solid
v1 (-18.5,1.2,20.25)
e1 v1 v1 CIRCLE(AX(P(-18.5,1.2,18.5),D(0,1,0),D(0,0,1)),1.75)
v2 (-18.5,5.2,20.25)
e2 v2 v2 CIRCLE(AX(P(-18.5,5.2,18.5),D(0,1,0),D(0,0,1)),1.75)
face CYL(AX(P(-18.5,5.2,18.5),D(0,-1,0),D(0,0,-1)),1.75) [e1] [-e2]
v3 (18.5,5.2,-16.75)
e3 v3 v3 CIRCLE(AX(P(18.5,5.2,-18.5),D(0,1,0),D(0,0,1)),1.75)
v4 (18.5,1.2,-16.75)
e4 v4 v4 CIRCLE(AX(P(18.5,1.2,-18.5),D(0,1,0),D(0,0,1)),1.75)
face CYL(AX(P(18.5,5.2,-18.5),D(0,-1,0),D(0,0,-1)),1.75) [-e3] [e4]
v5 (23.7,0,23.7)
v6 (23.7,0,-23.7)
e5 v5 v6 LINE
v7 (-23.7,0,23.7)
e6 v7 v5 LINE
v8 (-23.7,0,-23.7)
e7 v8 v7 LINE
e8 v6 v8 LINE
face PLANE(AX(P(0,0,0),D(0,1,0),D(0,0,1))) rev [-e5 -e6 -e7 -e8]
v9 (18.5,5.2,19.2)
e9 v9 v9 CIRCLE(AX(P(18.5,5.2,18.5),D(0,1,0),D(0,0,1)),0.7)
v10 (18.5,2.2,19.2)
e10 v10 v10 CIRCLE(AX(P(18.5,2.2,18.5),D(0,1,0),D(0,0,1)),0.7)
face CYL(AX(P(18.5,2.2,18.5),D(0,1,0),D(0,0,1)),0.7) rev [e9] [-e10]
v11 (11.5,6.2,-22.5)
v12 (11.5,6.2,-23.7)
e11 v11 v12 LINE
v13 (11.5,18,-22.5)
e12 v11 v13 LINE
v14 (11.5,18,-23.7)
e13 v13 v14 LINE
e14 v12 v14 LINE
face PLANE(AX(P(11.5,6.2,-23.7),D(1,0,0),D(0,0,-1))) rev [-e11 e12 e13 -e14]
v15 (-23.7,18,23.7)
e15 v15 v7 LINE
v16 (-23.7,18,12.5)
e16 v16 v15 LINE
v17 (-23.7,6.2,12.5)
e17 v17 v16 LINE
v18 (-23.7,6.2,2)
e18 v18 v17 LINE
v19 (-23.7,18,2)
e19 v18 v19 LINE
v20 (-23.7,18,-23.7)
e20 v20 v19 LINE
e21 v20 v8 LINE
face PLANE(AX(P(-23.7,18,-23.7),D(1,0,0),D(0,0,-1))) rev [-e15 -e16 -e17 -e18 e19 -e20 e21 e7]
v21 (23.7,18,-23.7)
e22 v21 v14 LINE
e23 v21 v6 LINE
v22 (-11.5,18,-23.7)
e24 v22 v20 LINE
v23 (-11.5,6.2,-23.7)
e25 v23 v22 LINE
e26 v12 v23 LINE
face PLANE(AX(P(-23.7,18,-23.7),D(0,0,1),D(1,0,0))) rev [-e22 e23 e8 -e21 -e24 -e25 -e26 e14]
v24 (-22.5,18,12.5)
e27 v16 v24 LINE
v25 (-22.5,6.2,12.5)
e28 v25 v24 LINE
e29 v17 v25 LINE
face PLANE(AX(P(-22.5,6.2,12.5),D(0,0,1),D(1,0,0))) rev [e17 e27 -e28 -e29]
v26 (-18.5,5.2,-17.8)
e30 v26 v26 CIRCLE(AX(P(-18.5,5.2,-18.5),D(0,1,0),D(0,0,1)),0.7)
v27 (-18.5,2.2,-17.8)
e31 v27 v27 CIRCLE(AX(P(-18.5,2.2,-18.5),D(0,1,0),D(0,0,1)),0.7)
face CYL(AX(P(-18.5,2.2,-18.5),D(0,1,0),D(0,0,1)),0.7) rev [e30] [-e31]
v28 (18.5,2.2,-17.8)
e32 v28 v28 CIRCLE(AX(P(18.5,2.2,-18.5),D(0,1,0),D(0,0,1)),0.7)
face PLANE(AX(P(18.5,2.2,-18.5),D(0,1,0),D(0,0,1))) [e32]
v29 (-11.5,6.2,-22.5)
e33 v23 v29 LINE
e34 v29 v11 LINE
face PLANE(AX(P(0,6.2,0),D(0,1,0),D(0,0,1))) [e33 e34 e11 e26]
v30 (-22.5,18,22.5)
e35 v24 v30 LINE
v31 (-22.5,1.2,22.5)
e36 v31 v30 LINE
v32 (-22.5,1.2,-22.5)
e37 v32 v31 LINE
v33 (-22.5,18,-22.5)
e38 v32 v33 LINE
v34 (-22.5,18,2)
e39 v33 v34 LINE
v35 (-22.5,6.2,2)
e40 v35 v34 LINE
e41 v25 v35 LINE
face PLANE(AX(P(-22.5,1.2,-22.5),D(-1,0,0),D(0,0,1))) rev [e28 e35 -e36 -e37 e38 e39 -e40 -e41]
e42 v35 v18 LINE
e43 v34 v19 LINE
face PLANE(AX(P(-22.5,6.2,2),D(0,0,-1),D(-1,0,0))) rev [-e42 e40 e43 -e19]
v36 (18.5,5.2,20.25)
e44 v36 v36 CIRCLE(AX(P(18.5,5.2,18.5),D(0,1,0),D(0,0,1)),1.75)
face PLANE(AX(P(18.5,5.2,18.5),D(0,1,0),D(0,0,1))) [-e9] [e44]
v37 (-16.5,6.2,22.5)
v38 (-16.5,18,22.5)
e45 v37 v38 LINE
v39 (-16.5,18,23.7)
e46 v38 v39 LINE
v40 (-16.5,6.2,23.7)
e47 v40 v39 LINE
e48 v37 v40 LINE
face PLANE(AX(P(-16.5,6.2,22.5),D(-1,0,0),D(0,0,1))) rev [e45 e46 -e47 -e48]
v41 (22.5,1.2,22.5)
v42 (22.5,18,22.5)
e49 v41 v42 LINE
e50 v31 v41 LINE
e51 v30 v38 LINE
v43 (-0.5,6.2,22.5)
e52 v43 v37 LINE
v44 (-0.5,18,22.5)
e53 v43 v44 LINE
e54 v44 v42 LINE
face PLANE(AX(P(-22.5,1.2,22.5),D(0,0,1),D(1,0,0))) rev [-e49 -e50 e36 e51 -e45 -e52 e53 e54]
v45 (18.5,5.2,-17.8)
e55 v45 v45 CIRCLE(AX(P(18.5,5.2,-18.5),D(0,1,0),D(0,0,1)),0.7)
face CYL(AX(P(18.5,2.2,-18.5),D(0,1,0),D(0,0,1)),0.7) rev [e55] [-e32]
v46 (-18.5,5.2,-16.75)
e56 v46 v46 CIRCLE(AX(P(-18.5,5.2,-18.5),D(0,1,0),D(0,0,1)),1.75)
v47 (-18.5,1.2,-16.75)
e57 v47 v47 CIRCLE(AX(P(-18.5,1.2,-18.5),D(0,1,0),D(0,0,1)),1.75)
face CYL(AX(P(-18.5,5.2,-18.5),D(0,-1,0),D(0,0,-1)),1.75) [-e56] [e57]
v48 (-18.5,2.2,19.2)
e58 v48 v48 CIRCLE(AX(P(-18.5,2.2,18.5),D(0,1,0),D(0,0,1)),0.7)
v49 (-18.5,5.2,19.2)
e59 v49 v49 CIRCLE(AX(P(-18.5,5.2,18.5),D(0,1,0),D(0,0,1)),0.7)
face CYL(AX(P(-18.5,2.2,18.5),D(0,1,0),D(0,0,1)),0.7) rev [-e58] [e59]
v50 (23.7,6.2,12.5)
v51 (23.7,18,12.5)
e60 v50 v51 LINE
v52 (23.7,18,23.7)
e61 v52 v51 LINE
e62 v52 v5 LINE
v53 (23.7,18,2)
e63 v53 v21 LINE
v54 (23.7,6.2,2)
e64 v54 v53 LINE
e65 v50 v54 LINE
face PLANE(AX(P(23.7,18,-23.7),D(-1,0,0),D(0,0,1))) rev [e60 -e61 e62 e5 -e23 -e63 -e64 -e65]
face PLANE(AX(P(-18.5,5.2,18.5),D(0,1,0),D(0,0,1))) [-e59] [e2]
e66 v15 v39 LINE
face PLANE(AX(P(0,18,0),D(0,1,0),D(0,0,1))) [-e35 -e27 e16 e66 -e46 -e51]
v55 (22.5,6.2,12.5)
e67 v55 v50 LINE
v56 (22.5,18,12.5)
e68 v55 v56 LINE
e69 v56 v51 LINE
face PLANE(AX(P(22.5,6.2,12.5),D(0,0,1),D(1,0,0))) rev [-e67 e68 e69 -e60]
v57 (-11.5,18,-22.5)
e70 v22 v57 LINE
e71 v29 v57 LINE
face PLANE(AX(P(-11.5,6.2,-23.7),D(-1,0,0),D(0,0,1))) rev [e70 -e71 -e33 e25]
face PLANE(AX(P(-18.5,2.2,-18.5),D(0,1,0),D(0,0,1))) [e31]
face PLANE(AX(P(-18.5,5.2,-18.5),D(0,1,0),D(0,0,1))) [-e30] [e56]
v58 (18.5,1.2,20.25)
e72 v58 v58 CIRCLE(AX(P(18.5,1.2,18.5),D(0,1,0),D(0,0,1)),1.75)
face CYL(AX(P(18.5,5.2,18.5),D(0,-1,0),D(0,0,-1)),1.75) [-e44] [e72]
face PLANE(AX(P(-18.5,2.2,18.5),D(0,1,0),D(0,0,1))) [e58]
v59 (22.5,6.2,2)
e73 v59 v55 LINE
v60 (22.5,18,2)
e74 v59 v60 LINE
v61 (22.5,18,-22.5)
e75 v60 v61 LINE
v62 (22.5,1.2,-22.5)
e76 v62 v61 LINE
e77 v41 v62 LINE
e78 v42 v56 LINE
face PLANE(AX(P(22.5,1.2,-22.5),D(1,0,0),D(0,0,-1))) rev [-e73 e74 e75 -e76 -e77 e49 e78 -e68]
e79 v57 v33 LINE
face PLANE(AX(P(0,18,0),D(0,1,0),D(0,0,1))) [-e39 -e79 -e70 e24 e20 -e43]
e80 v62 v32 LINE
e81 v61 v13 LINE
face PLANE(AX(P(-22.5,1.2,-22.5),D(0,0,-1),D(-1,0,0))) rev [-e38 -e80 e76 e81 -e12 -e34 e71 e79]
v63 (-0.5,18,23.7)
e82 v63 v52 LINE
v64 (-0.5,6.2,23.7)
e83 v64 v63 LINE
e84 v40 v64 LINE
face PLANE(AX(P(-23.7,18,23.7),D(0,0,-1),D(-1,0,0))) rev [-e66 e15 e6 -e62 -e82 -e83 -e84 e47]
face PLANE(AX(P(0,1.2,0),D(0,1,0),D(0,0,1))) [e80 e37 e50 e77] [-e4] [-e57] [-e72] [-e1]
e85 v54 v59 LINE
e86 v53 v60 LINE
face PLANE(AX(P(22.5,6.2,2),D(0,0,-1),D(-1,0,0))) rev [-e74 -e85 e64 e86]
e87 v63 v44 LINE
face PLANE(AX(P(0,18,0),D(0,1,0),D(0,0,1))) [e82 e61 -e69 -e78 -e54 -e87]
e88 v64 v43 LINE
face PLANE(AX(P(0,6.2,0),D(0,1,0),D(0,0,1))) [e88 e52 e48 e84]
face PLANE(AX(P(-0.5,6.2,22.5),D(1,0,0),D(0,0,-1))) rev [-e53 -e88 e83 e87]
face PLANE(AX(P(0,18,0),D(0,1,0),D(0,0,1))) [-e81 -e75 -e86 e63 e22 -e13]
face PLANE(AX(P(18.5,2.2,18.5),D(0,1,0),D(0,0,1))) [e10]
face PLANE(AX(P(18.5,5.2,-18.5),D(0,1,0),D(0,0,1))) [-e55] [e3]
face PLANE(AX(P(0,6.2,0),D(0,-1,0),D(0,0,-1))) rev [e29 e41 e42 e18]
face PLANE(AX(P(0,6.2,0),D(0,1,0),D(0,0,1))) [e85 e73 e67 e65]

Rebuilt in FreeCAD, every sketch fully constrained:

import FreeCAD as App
import Part
import Sketcher


def add_polygon(sketch, points):
    """Adds a closed chain of lines whose ends are joined by coincident constraints."""
    first, n = sketch.GeometryCount, len(points)
    for a, b in zip(points, points[1:] + points[:1]):
        sketch.addGeometry(Part.LineSegment(App.Vector(*a, 0), App.Vector(*b, 0)), False)
    for i in range(n):
        sketch.addConstraint(Sketcher.Constraint("Coincident", first + i, 2, first + (i + 1) % n, 1))

doc = App.newDocument("Part")
body = doc.addObject("PartDesign::Body", "Body")

# Sketch on XZ plane
sketch1 = body.newObject("Sketcher::SketchObject", "Sketch")
sketch1.AttachmentSupport = (doc.getObject("XZ_Plane"), [""])
sketch1.MapMode = "FlatFace"
add_polygon(sketch1, [(-24, -24), (-24, 24), (24, 24), (24, -24)])  # lines 0-3
sketch1.addConstraint([
    Sketcher.Constraint("Vertical", 0),
    Sketcher.Constraint("Horizontal", 1),
    Sketcher.Constraint("Vertical", 2),
    Sketcher.Constraint("Horizontal", 3),
    Sketcher.Constraint("Symmetric", 0, 2, 2, 2, -1, 1),
    Sketcher.Constraint("Equal", 3, 0),
    Sketcher.Constraint("DistanceX", 1, 1, 1, 2, 47.4),
])
pad1 = body.newObject("PartDesign::Pad", "Pad")
pad1.Profile = sketch1
pad1.Length = 18
pad1.Reversed = True

# Sketch on XZ plane
sketch2 = body.newObject("Sketcher::SketchObject", "Sketch001")
sketch2.AttachmentSupport = (doc.getObject("XZ_Plane"), [""])
sketch2.MapMode = "FlatFace"
sketch2.AttachmentOffset = App.Placement(App.Vector(0, 0, -18), App.Rotation())
add_polygon(sketch2, [(-22, -22), (-22, 22), (22, 22), (22, -22)])  # lines 0-3
sketch2.addConstraint([
    Sketcher.Constraint("Vertical", 0),
    Sketcher.Constraint("Horizontal", 1),
    Sketcher.Constraint("Vertical", 2),
    Sketcher.Constraint("Horizontal", 3),
    Sketcher.Constraint("Symmetric", 0, 2, 2, 2, -1, 1),
    Sketcher.Constraint("Equal", 3, 0),
    Sketcher.Constraint("DistanceX", 1, 1, 1, 2, 45.0),
])
pocket1 = body.newObject("PartDesign::Pocket", "Pocket")
pocket1.Profile = sketch2
pocket1.Length = 16.8
pocket1.Reversed = True

# Sketch on XZ plane
sketch3 = body.newObject("Sketcher::SketchObject", "Sketch002")
sketch3.AttachmentSupport = (doc.getObject("XZ_Plane"), [""])
sketch3.MapMode = "FlatFace"
sketch3.AttachmentOffset = App.Placement(App.Vector(0, 0, -1.2), App.Rotation())
sketch3.addGeometry([
    Part.Circle(App.Vector(-18.5, -18.5, 0), App.Vector(0, 0, 1), 1.8),
    Part.Circle(App.Vector(18.5, -18.5, 0), App.Vector(0, 0, 1), 1.8),
    Part.Circle(App.Vector(18.5, 18.5, 0), App.Vector(0, 0, 1), 1.8),
    Part.Circle(App.Vector(-18.5, 18.5, 0), App.Vector(0, 0, 1), 1.8),
], False)
sketch3.addConstraint([
    Sketcher.Constraint("Equal", 0, 1),
    Sketcher.Constraint("Equal", 1, 2),
    Sketcher.Constraint("Equal", 2, 3),
    Sketcher.Constraint("Symmetric", 0, 3, 2, 3, -1, 1),
    Sketcher.Constraint("Symmetric", 1, 3, 3, 3, -1, 1),
    Sketcher.Constraint("Symmetric", 0, 3, 1, 3, -2),
    Sketcher.Constraint("Diameter", 0, 3.5),
    Sketcher.Constraint("DistanceX", 0, 3, 1, 3, 37.0),
    Sketcher.Constraint("DistanceY", 1, 3, 2, 3, 37.0),
])
pad2 = body.newObject("PartDesign::Pad", "Pad001")
pad2.Profile = sketch3
pad2.Length = 4
pad2.Reversed = True

# Sketch on XZ plane
sketch4 = body.newObject("Sketcher::SketchObject", "Sketch003")
sketch4.AttachmentSupport = (doc.getObject("XZ_Plane"), [""])
sketch4.MapMode = "FlatFace"
sketch4.AttachmentOffset = App.Placement(App.Vector(0, 0, -5.2), App.Rotation())
sketch4.addGeometry([
    Part.Circle(App.Vector(-18.5, 18.5, 0), App.Vector(0, 0, 1), 0.7),
    Part.Circle(App.Vector(-18.5, -18.5, 0), App.Vector(0, 0, 1), 0.7),
    Part.Circle(App.Vector(18.5, -18.5, 0), App.Vector(0, 0, 1), 0.7),
    Part.Circle(App.Vector(18.5, 18.5, 0), App.Vector(0, 0, 1), 0.7),
], False)
sketch4.addConstraint([
    Sketcher.Constraint("Equal", 0, 1),
    Sketcher.Constraint("Equal", 1, 2),
    Sketcher.Constraint("Equal", 2, 3),
    Sketcher.Constraint("Symmetric", 0, 3, 2, 3, -1, 1),
    Sketcher.Constraint("Symmetric", 1, 3, 3, 3, -1, 1),
    Sketcher.Constraint("Symmetric", 1, 3, 2, 3, -2),
    Sketcher.Constraint("Diameter", 0, 1.4),
    Sketcher.Constraint("DistanceY", 1, 3, 0, 3, 37.0),
    Sketcher.Constraint("DistanceX", 1, 3, 2, 3, 37.0),
])
pocket2 = body.newObject("PartDesign::Pocket", "Pocket001")
pocket2.Profile = sketch4
pocket2.Length = 3
pocket2.Reversed = True

# Sketch on XZ plane
sketch5 = body.newObject("Sketcher::SketchObject", "Sketch004")
sketch5.AttachmentSupport = (doc.getObject("XZ_Plane"), [""])
sketch5.MapMode = "FlatFace"
sketch5.AttachmentOffset = App.Placement(App.Vector(0, 0, -18), App.Rotation())
add_polygon(sketch5, [(-16.5, 22.5), (-16.5, 23.7), (-0.5, 23.7), (-0.5, 22.5)])  # lines 0-3
add_polygon(sketch5, [(22.5, 2), (22.5, 12.5), (23.7, 12.5), (23.7, 2)])  # lines 4-7
add_polygon(sketch5, [(-23.7, 2), (-23.7, 12.5), (-22.5, 12.5), (-22.5, 2)])  # lines 8-11
add_polygon(sketch5, [(-11.5, -23.7), (-11.5, -22.5), (11.5, -22.5), (11.5, -23.7)])  # lines 12-15
sketch5.addConstraint([
    Sketcher.Constraint("Vertical", 0),
    Sketcher.Constraint("Horizontal", 1),
    Sketcher.Constraint("Vertical", 2),
    Sketcher.Constraint("Horizontal", 3),
    Sketcher.Constraint("Vertical", 4),
    Sketcher.Constraint("Horizontal", 5),
    Sketcher.Constraint("Vertical", 6),
    Sketcher.Constraint("Horizontal", 7),
    Sketcher.Constraint("Vertical", 8),
    Sketcher.Constraint("Horizontal", 9),
    Sketcher.Constraint("Vertical", 10),
    Sketcher.Constraint("Horizontal", 11),
    Sketcher.Constraint("Vertical", 12),
    Sketcher.Constraint("Horizontal", 13),
    Sketcher.Constraint("Vertical", 14),
    Sketcher.Constraint("Horizontal", 15),
    Sketcher.Constraint("Symmetric", 5, 2, 8, 2, -2),
    Sketcher.Constraint("Symmetric", 7, 2, 10, 2, -2),
    Sketcher.Constraint("Equal", 11, 0),
    Sketcher.Constraint("Equal", 2, 12),
    Sketcher.Constraint("DistanceX", 1, 1, 1, 2, 16.0),
    Sketcher.Constraint("DistanceX", 13, 1, 13, 2, 23.0),
    Sketcher.Constraint("DistanceX", 5, 1, 5, 2, 1.2),
    Sketcher.Constraint("DistanceY", 4, 1, 4, 2, 10.5),
    Sketcher.Constraint("DistanceY", -1, 1, 6, 2, 2.0),
    Sketcher.Constraint("DistanceX", 2, 2, 4, 2, 23.0),
    Sketcher.Constraint("DistanceY", 4, 2, 2, 2, 10.0),
    Sketcher.Constraint("DistanceX", 9, 2, 3, 2, 6.0),
    Sketcher.Constraint("DistanceX", 10, 2, 12, 2, 11.0),
    Sketcher.Constraint("DistanceY", 12, 2, 9, 2, 35.0),
])
pocket3 = body.newObject("PartDesign::Pocket", "Pocket002")
pocket3.Profile = sketch5
pocket3.Length = 11.8
pocket3.Reversed = True

doc.recompute()
